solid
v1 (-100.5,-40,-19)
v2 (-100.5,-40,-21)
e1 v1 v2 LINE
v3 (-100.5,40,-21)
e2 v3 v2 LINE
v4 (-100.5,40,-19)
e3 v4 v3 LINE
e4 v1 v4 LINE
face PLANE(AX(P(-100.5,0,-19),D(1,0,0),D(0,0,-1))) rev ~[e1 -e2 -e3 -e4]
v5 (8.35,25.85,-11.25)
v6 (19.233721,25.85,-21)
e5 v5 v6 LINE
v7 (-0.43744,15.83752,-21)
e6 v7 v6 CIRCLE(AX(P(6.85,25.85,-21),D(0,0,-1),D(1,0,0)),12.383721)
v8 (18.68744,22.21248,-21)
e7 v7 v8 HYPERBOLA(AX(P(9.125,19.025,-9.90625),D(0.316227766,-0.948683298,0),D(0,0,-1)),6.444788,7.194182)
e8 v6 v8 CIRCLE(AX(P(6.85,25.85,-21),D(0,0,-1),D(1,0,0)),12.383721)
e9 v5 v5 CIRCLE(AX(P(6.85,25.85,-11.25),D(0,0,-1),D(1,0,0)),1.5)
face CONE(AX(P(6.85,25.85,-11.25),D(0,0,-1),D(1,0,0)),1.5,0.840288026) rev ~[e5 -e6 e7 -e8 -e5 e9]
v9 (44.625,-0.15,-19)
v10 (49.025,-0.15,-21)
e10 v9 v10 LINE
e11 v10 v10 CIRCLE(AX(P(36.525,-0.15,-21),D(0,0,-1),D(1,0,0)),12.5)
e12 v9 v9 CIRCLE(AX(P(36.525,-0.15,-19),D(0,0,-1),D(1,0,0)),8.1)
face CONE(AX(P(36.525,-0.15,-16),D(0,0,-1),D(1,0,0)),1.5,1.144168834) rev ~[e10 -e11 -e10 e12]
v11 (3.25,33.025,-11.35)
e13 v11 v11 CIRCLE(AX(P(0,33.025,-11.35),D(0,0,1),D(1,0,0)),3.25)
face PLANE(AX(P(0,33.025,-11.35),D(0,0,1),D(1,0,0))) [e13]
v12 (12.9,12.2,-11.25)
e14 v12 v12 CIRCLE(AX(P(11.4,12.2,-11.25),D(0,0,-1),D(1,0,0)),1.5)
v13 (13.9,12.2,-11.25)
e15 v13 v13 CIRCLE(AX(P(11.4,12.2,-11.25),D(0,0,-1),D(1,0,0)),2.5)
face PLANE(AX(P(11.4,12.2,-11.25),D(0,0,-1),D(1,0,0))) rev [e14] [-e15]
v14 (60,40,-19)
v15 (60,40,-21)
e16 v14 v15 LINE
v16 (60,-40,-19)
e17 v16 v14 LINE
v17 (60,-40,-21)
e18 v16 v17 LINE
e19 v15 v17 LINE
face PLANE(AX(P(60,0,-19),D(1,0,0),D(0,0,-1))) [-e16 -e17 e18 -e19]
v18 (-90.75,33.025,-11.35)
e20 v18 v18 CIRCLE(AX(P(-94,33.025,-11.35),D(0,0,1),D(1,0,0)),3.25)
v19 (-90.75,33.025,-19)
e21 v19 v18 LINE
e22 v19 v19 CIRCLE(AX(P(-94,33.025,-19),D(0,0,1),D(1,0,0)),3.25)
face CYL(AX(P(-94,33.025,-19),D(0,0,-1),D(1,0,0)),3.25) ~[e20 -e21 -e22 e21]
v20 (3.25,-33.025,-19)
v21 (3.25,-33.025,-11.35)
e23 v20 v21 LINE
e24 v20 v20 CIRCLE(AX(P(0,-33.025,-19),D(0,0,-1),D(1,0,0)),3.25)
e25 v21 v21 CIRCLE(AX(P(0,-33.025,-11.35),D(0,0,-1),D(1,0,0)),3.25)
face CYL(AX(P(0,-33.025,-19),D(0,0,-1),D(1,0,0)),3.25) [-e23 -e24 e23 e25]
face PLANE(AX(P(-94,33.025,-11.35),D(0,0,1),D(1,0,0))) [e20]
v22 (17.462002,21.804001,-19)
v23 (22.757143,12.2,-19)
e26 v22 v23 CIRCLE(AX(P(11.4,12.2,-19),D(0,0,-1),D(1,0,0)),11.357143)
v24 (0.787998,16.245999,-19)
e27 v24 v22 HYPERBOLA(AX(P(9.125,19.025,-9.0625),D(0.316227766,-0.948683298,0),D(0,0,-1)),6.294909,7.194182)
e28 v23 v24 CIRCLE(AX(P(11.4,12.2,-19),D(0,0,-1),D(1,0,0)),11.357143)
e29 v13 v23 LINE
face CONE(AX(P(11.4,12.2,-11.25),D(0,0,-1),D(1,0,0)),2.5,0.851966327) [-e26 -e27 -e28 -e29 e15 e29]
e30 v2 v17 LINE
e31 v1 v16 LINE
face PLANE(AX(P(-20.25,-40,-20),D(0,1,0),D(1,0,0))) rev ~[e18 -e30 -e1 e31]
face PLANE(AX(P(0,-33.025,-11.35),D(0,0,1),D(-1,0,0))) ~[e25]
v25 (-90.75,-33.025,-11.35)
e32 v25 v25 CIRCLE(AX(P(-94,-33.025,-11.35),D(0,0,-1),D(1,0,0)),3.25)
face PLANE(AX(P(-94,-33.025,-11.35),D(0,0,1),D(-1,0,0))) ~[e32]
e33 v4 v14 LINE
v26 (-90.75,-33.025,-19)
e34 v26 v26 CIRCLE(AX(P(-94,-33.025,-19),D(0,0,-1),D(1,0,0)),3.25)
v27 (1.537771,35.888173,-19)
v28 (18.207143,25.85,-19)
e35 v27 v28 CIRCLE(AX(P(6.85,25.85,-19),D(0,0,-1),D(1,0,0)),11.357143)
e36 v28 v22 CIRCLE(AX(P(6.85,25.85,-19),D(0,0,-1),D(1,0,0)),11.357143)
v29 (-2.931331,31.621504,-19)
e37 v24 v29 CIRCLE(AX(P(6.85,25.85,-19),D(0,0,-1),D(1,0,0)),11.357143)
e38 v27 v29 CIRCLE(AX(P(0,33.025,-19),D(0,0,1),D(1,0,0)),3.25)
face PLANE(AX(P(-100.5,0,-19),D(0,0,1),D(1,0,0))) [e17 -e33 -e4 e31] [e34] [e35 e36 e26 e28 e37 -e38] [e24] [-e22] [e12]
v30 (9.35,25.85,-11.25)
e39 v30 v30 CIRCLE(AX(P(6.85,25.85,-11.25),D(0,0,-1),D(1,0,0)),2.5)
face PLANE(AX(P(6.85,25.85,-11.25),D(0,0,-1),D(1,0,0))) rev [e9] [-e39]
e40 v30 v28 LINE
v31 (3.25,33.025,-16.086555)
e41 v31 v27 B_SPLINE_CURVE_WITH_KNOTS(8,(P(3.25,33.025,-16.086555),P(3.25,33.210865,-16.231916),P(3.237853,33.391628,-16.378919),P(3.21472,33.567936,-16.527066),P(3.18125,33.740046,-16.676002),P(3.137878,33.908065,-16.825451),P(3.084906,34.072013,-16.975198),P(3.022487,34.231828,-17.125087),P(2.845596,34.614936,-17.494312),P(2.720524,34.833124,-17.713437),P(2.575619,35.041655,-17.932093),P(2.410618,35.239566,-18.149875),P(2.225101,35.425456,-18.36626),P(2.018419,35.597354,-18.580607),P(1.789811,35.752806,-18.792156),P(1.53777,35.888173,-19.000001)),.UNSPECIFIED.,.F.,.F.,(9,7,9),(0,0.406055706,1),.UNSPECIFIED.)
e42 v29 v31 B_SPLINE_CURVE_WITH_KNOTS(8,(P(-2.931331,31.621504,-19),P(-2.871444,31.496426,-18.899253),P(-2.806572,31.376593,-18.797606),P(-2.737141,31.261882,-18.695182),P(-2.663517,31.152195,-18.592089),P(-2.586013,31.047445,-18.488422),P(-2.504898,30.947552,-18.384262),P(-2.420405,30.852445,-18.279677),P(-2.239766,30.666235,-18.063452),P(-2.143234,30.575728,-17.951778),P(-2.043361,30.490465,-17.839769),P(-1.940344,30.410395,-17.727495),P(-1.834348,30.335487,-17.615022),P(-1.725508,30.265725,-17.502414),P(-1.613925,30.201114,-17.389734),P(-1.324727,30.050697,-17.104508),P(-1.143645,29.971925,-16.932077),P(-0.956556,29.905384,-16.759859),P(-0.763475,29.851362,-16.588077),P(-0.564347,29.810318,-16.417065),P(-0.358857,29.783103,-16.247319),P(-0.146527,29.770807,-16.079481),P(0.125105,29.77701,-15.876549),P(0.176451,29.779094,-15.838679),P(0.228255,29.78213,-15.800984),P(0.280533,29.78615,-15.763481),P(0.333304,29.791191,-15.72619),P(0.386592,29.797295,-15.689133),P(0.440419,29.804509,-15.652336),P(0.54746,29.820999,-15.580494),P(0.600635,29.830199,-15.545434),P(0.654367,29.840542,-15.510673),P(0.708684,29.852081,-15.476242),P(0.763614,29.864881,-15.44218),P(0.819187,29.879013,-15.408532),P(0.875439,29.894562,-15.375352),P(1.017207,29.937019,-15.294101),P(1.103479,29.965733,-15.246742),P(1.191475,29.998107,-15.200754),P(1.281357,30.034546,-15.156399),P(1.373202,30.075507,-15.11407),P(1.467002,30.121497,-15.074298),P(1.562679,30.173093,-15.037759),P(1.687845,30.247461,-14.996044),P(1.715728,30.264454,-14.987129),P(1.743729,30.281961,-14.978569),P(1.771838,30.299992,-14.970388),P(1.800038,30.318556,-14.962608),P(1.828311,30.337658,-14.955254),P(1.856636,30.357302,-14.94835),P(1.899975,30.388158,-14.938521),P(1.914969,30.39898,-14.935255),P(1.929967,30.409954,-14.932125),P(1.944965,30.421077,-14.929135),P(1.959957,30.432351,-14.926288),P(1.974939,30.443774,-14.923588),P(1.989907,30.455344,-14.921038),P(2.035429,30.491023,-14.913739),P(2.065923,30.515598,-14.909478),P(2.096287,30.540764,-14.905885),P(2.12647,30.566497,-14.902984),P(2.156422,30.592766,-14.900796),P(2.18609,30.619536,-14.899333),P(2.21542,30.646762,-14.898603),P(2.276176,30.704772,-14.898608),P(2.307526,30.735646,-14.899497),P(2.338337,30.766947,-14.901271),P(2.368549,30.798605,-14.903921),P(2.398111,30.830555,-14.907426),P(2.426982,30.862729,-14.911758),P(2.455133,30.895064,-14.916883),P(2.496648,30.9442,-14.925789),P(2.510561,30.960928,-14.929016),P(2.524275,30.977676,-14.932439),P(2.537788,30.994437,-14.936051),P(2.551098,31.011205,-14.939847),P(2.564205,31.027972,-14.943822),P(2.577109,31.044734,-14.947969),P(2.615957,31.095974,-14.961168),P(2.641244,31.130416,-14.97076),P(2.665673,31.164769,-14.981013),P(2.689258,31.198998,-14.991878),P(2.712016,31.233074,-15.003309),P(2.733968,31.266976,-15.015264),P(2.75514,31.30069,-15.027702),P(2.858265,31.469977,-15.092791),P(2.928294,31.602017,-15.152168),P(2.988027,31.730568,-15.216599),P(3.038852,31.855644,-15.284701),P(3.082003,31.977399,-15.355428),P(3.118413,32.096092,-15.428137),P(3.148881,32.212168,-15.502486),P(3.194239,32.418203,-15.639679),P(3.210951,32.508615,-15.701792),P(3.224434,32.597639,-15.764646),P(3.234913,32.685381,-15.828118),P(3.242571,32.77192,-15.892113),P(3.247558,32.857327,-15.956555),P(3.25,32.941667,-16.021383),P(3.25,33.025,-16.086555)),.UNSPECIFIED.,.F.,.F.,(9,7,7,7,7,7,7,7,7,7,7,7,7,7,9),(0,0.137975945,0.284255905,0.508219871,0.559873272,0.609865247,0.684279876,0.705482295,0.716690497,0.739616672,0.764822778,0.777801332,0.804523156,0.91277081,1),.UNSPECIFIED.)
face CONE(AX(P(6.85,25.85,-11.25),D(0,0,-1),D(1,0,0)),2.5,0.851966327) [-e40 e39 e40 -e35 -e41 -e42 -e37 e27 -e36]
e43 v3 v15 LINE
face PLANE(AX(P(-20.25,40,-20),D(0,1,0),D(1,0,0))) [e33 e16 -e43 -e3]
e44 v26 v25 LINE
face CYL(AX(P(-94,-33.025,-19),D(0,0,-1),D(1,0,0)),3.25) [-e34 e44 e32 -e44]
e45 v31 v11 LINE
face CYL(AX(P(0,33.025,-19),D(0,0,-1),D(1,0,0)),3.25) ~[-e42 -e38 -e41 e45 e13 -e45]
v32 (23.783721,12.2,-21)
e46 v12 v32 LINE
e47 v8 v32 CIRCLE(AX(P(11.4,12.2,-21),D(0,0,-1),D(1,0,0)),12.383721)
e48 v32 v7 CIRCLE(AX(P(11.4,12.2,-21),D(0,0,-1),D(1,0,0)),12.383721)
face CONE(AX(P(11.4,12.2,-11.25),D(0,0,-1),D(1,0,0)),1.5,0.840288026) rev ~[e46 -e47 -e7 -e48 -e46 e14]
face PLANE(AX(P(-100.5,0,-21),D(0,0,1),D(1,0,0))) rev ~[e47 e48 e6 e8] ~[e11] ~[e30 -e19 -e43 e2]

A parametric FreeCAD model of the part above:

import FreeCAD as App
import Part
import Sketcher

V = App.Vector

doc = App.newDocument("Part")
body = doc.addObject("PartDesign::Body", "Body")

# Sketch on XZ plane
sketch1 = body.newObject("Sketcher::SketchObject", "Sketch")
sketch1.AttachmentSupport = (doc.getObject("XZ_Plane"), [""])
sketch1.MapMode = "FlatFace"
sketch1.addGeometry(Part.LineSegment(V(-100.5, 22.5, 0), V(-100.5, 20.5, 0)), False)
sketch1.addGeometry(Part.LineSegment(V(-100.5, 20.5, 0), V(60, 20.5, 0)), False)
sketch1.addGeometry(Part.LineSegment(V(60, 20.5, 0), V(60, 22.5, 0)), False)
sketch1.addGeometry(Part.LineSegment(V(60, 22.5, 0), V(-100.5, 22.5, 0)), False)
sketch1.addConstraint(Sketcher.Constraint("Coincident", 0, 2, 1, 1))
sketch1.addConstraint(Sketcher.Constraint("Coincident", 1, 2, 2, 1))
sketch1.addConstraint(Sketcher.Constraint("Coincident", 2, 2, 3, 1))
sketch1.addConstraint(Sketcher.Constraint("Coincident", 3, 2, 0, 1))
sketch1.addConstraint(Sketcher.Constraint("Vertical", 0))
sketch1.addConstraint(Sketcher.Constraint("Horizontal", 1))
sketch1.addConstraint(Sketcher.Constraint("Vertical", 2))
sketch1.addConstraint(Sketcher.Constraint("Horizontal", 3))
sketch1.addConstraint(Sketcher.Constraint("DistanceY", 0, 2, 0, 1, 2.0))
sketch1.addConstraint(Sketcher.Constraint("DistanceX", 1, 1, 1, 2, 160.5))
sketch1.addConstraint(Sketcher.Constraint("DistanceX", -1, 1, 1, 2, 60.0))
sketch1.addConstraint(Sketcher.Constraint("DistanceY", -1, 1, 0, 2, 20.5))
pad1 = body.newObject("PartDesign::Pad", "Pad")
pad1.Profile = sketch1
pad1.Length = 80
pad1.Midplane = True

# Sketch on XZ plane
sketch2 = body.newObject("Sketcher::SketchObject", "Sketch001")
sketch2.AttachmentSupport = (doc.getObject("XZ_Plane"), [""])
sketch2.MapMode = "FlatFace"
sketch2.AttachmentOffset = App.Placement(V(0, 0, 12.2), App.Rotation())
sketch2.addGeometry(Part.LineSegment(V(11.4, 12.8, 0), V(13.9, 12.8, 0)), False)
sketch2.addGeometry(Part.LineSegment(V(13.9, 12.8, 0), V(23.9, 21.5, 0)), False)
sketch2.addGeometry(Part.LineSegment(V(23.9, 21.5, 0), V(11.4, 21.5, 0)), False)
sketch2.addGeometry(Part.LineSegment(V(11.4, 21.5, 0), V(11.4, 12.8, 0)), False)
sketch2.addGeometry(Part.LineSegment(V(11.4, 12.8, 0), V(11.4, 21.5, 0)), True)  # axis
sketch2.addConstraint(Sketcher.Constraint("Coincident", 0, 2, 1, 1))
sketch2.addConstraint(Sketcher.Constraint("Coincident", 1, 2, 2, 1))
sketch2.addConstraint(Sketcher.Constraint("Coincident", 2, 2, 3, 1))
sketch2.addConstraint(Sketcher.Constraint("Coincident", 3, 2, 0, 1))
sketch2.addConstraint(Sketcher.Constraint("Horizontal", 0))
sketch2.addConstraint(Sketcher.Constraint("Horizontal", 2))
sketch2.addConstraint(Sketcher.Constraint("Vertical", 3))
sketch2.addConstraint(Sketcher.Constraint("Vertical", 4))
sketch2.addConstraint(Sketcher.Constraint("Coincident", 4, 1, 3, 2))
sketch2.addConstraint(Sketcher.Constraint("Horizontal", 1, 2, 4, 2))
sketch2.addConstraint(Sketcher.Constraint("DistanceX", 0, 1, 0, 2, 2.5))
sketch2.addConstraint(Sketcher.Constraint("DistanceX", 2, 2, 2, 1, 12.5))
sketch2.addConstraint(Sketcher.Constraint("DistanceY", 3, 2, 3, 1, 8.75))
sketch2.addConstraint(Sketcher.Constraint("DistanceX", -1, 1, 0, 2, 13.9))
sketch2.addConstraint(Sketcher.Constraint("DistanceY", -1, 1, 1, 2, 21.5))
revolution = body.newObject("PartDesign::Revolution", "Revolution")
revolution.Profile = sketch2
revolution.ReferenceAxis = (sketch2, ["Axis0"])
revolution.Angle = 360

# Sketch on XZ plane
sketch3 = body.newObject("Sketcher::SketchObject", "Sketch002")
sketch3.AttachmentSupport = (doc.getObject("XZ_Plane"), [""])
sketch3.MapMode = "FlatFace"
sketch3.AttachmentOffset = App.Placement(V(0, 0, 25.85), App.Rotation())
sketch3.addGeometry(Part.LineSegment(V(6.8, 12.8, 0), V(9.3, 12.8, 0)), False)
sketch3.addGeometry(Part.LineSegment(V(9.3, 12.8, 0), V(19.4, 21.5, 0)), False)
sketch3.addGeometry(Part.LineSegment(V(19.4, 21.5, 0), V(6.8, 21.5, 0)), False)
sketch3.addGeometry(Part.LineSegment(V(6.8, 21.5, 0), V(6.8, 12.8, 0)), False)
sketch3.addGeometry(Part.LineSegment(V(6.8, 12.8, 0), V(6.8, 21.5, 0)), True)  # axis
sketch3.addConstraint(Sketcher.Constraint("Coincident", 0, 2, 1, 1))
sketch3.addConstraint(Sketcher.Constraint("Coincident", 1, 2, 2, 1))
sketch3.addConstraint(Sketcher.Constraint("Coincident", 2, 2, 3, 1))
sketch3.addConstraint(Sketcher.Constraint("Coincident", 3, 2, 0, 1))
sketch3.addConstraint(Sketcher.Constraint("Horizontal", 0))
sketch3.addConstraint(Sketcher.Constraint("Horizontal", 2))
sketch3.addConstraint(Sketcher.Constraint("Vertical", 3))
sketch3.addConstraint(Sketcher.Constraint("Vertical", 4))
sketch3.addConstraint(Sketcher.Constraint("Coincident", 4, 1, 3, 2))
sketch3.addConstraint(Sketcher.Constraint("Horizontal", 1, 2, 4, 2))
sketch3.addConstraint(Sketcher.Constraint("DistanceX", 0, 1, 0, 2, 2.5))
sketch3.addConstraint(Sketcher.Constraint("DistanceX", 2, 2, 2, 1, 12.5))
sketch3.addConstraint(Sketcher.Constraint("DistanceY", 3, 2, 3, 1, 8.75))
sketch3.addConstraint(Sketcher.Constraint("DistanceY", -1, 1, 1, 2, 21.5))
sketch3.addConstraint(Sketcher.Constraint("DistanceX", -1, 1, 0, 2, 9.35))
revolution2 = body.newObject("PartDesign::Revolution", "Revolution001")
revolution2.Profile = sketch3
revolution2.ReferenceAxis = (sketch3, ["Axis0"])
revolution2.Angle = 360

# Sketch on XY plane
sketch4 = body.newObject("Sketcher::SketchObject", "Sketch003")
sketch4.AttachmentSupport = (doc.getObject("XY_Plane"), [""])
sketch4.MapMode = "FlatFace"
sketch4.AttachmentOffset = App.Placement(V(0, 0, 20.5), App.Rotation())
sketch4.addGeometry(Part.Circle(V(0, -33, 0), V(0, 0, 1), 3.2), False)
sketch4.addConstraint(Sketcher.Constraint("PointOnObject", 0, 3, -2))
sketch4.addConstraint(Sketcher.Constraint("Diameter", 0, 6.5))
sketch4.addConstraint(Sketcher.Constraint("DistanceY", 0, 3, -1, 1, 33.025))
pad2 = body.newObject("PartDesign::Pad", "Pad001")
pad2.Profile = sketch4
pad2.Length = 7.65
pad2.Reversed = True

# Sketch on XY plane
sketch5 = body.newObject("Sketcher::SketchObject", "Sketch004")
sketch5.AttachmentSupport = (doc.getObject("XY_Plane"), [""])
sketch5.MapMode = "FlatFace"
sketch5.AttachmentOffset = App.Placement(V(0, 0, 20.5), App.Rotation())
sketch5.addGeometry(Part.Circle(V(-94, -33, 0), V(0, 0, 1), 3.2), False)
sketch5.addConstraint(Sketcher.Constraint("Diameter", 0, 6.5))
sketch5.addConstraint(Sketcher.Constraint("DistanceX", 0, 3, -1, 1, 94.0))
sketch5.addConstraint(Sketcher.Constraint("DistanceY", 0, 3, -1, 1, 33.025))
pad3 = body.newObject("PartDesign::Pad", "Pad002")
pad3.Profile = sketch5
pad3.Length = 7.65
pad3.Reversed = True
doc.recompute()

mirrored = body.newObject("PartDesign::Mirrored", "Mirrored")
mirrored.Originals = [pad2, pad3]
mirrored.MirrorPlane = (doc.getObject("XZ_Plane"), [""])
body.Tip = mirrored

# Sketch on XZ plane
sketch6 = body.newObject("Sketcher::SketchObject", "Sketch005")
sketch6.AttachmentSupport = (doc.getObject("XZ_Plane"), [""])
sketch6.MapMode = "FlatFace"
sketch6.AttachmentOffset = App.Placement(V(0, 0, 12.2), App.Rotation())
sketch6.addGeometry(Part.LineSegment(V(11.4, 12.8, 0), V(12.9, 12.8, 0)), False)
sketch6.addGeometry(Part.LineSegment(V(12.9, 12.8, 0), V(24.9, 23.5, 0)), False)
sketch6.addGeometry(Part.LineSegment(V(24.9, 23.5, 0), V(11.4, 23.5, 0)), False)
sketch6.addGeometry(Part.LineSegment(V(11.4, 23.5, 0), V(11.4, 12.8, 0)), False)
sketch6.addGeometry(Part.LineSegment(V(11.4, 12.8, 0), V(11.4, 23.5, 0)), True)  # axis
sketch6.addConstraint(Sketcher.Constraint("Coincident", 0, 2, 1, 1))
sketch6.addConstraint(Sketcher.Constraint("Coincident", 1, 2, 2, 1))
sketch6.addConstraint(Sketcher.Constraint("Coincident", 2, 2, 3, 1))
sketch6.addConstraint(Sketcher.Constraint("Coincident", 3, 2, 0, 1))
sketch6.addConstraint(Sketcher.Constraint("Horizontal", 0))
sketch6.addConstraint(Sketcher.Constraint("Horizontal", 2))
sketch6.addConstraint(Sketcher.Constraint("Vertical", 3))
sketch6.addConstraint(Sketcher.Constraint("Vertical", 4))
sketch6.addConstraint(Sketcher.Constraint("Coincident", 4, 1, 3, 2))
sketch6.addConstraint(Sketcher.Constraint("Horizontal", 1, 2, 4, 2))
sketch6.addConstraint(Sketcher.Constraint("DistanceX", 0, 1, 0, 2, 1.5))
sketch6.addConstraint(Sketcher.Constraint("DistanceX", 2, 2, 2, 1, 13.5))
sketch6.addConstraint(Sketcher.Constraint("DistanceY", 3, 2, 3, 1, 10.75))
sketch6.addConstraint(Sketcher.Constraint("DistanceX", -1, 1, 0, 2, 12.9))
sketch6.addConstraint(Sketcher.Constraint("DistanceY", -1, 1, 1, 2, 23.5))
groove = body.newObject("PartDesign::Groove", "Groove")
groove.Profile = sketch6
groove.ReferenceAxis = (sketch6, ["Axis0"])
groove.Angle = 360

# Sketch on XZ plane
sketch7 = body.newObject("Sketcher::SketchObject", "Sketch006")
sketch7.AttachmentSupport = (doc.getObject("XZ_Plane"), [""])
sketch7.MapMode = "FlatFace"
sketch7.AttachmentOffset = App.Placement(V(0, 0, 25.85), App.Rotation())
sketch7.addGeometry(Part.LineSegment(V(6.8, 12.8, 0), V(8.3, 12.8, 0)), False)
sketch7.addGeometry(Part.LineSegment(V(8.3, 12.8, 0), V(20.4, 23.5, 0)), False)
sketch7.addGeometry(Part.LineSegment(V(20.4, 23.5, 0), V(6.8, 23.5, 0)), False)
sketch7.addGeometry(Part.LineSegment(V(6.8, 23.5, 0), V(6.8, 12.8, 0)), False)
sketch7.addGeometry(Part.LineSegment(V(6.8, 12.8, 0), V(6.8, 23.5, 0)), True)  # axis
sketch7.addConstraint(Sketcher.Constraint("Coincident", 0, 2, 1, 1))
sketch7.addConstraint(Sketcher.Constraint("Coincident", 1, 2, 2, 1))
sketch7.addConstraint(Sketcher.Constraint("Coincident", 2, 2, 3, 1))
sketch7.addConstraint(Sketcher.Constraint("Coincident", 3, 2, 0, 1))
sketch7.addConstraint(Sketcher.Constraint("Horizontal", 0))
sketch7.addConstraint(Sketcher.Constraint("Horizontal", 2))
sketch7.addConstraint(Sketcher.Constraint("Vertical", 3))
sketch7.addConstraint(Sketcher.Constraint("Vertical", 4))
sketch7.addConstraint(Sketcher.Constraint("Coincident", 4, 1, 3, 2))
sketch7.addConstraint(Sketcher.Constraint("Horizontal", 1, 2, 4, 2))
sketch7.addConstraint(Sketcher.Constraint("DistanceX", 0, 1, 0, 2, 1.5))
sketch7.addConstraint(Sketcher.Constraint("DistanceX", 2, 2, 2, 1, 13.5))
sketch7.addConstraint(Sketcher.Constraint("DistanceY", 3, 2, 3, 1, 10.75))
sketch7.addConstraint(Sketcher.Constraint("DistanceY", -1, 1, 1, 2, 23.5))
sketch7.addConstraint(Sketcher.Constraint("DistanceX", -1, 1, 0, 2, 8.35))
groove2 = body.newObject("PartDesign::Groove", "Groove001")
groove2.Profile = sketch7
groove2.ReferenceAxis = (sketch7, ["Axis0"])
groove2.Angle = 360

# Sketch on XZ plane
sketch8 = body.newObject("Sketcher::SketchObject", "Sketch007")
sketch8.AttachmentSupport = (doc.getObject("XZ_Plane"), [""])
sketch8.MapMode = "FlatFace"
sketch8.AttachmentOffset = App.Placement(V(0, 0, -0.15), App.Rotation())
sketch8.addGeometry(Part.LineSegment(V(36.5, 17.5, 0), V(38, 17.5, 0)), False)
sketch8.addGeometry(Part.LineSegment(V(38, 17.5, 0), V(49, 22.5, 0)), False)
sketch8.addGeometry(Part.LineSegment(V(49, 22.5, 0), V(36.5, 22.5, 0)), False)
sketch8.addGeometry(Part.LineSegment(V(36.5, 22.5, 0), V(36.5, 17.5, 0)), False)
sketch8.addGeometry(Part.LineSegment(V(36.5, 17.5, 0), V(36.5, 22.5, 0)), True)  # axis
sketch8.addConstraint(Sketcher.Constraint("Coincident", 0, 2, 1, 1))
sketch8.addConstraint(Sketcher.Constraint("Coincident", 1, 2, 2, 1))
sketch8.addConstraint(Sketcher.Constraint("Coincident", 2, 2, 3, 1))
sketch8.addConstraint(Sketcher.Constraint("Coincident", 3, 2, 0, 1))
sketch8.addConstraint(Sketcher.Constraint("Horizontal", 0))
sketch8.addConstraint(Sketcher.Constraint("Horizontal", 2))
sketch8.addConstraint(Sketcher.Constraint("Vertical", 3))
sketch8.addConstraint(Sketcher.Constraint("Vertical", 4))
sketch8.addConstraint(Sketcher.Constraint("Coincident", 4, 1, 3, 2))
sketch8.addConstraint(Sketcher.Constraint("Horizontal", 1, 2, 4, 2))
sketch8.addConstraint(Sketcher.Constraint("DistanceY", 3, 2, 3, 1, 5.0))
sketch8.addConstraint(Sketcher.Constraint("DistanceX", 0, 1, 0, 2, 1.5))
sketch8.addConstraint(Sketcher.Constraint("DistanceX", 2, 2, 2, 1, 12.5))
sketch8.addConstraint(Sketcher.Constraint("DistanceY", -1, 1, 0, 2, 17.5))
sketch8.addConstraint(Sketcher.Constraint("DistanceX", -1, 1, 0, 2, 38.025))
groove3 = body.newObject("PartDesign::Groove", "Groove002")
groove3.Profile = sketch8
groove3.ReferenceAxis = (sketch8, ["Axis0"])
groove3.Angle = 360
body2 = doc.addObject("PartDesign::Body", "Body001")
doc.recompute()

body.Placement = App.Placement(V(0, 0, 1.5), App.Rotation(V(1, 0, 0), 180))
boolean = body2.newObject("PartDesign::Boolean", "Boolean")
boolean.Type = "Fuse"
boolean.addObjects([body])

doc.recompute()
